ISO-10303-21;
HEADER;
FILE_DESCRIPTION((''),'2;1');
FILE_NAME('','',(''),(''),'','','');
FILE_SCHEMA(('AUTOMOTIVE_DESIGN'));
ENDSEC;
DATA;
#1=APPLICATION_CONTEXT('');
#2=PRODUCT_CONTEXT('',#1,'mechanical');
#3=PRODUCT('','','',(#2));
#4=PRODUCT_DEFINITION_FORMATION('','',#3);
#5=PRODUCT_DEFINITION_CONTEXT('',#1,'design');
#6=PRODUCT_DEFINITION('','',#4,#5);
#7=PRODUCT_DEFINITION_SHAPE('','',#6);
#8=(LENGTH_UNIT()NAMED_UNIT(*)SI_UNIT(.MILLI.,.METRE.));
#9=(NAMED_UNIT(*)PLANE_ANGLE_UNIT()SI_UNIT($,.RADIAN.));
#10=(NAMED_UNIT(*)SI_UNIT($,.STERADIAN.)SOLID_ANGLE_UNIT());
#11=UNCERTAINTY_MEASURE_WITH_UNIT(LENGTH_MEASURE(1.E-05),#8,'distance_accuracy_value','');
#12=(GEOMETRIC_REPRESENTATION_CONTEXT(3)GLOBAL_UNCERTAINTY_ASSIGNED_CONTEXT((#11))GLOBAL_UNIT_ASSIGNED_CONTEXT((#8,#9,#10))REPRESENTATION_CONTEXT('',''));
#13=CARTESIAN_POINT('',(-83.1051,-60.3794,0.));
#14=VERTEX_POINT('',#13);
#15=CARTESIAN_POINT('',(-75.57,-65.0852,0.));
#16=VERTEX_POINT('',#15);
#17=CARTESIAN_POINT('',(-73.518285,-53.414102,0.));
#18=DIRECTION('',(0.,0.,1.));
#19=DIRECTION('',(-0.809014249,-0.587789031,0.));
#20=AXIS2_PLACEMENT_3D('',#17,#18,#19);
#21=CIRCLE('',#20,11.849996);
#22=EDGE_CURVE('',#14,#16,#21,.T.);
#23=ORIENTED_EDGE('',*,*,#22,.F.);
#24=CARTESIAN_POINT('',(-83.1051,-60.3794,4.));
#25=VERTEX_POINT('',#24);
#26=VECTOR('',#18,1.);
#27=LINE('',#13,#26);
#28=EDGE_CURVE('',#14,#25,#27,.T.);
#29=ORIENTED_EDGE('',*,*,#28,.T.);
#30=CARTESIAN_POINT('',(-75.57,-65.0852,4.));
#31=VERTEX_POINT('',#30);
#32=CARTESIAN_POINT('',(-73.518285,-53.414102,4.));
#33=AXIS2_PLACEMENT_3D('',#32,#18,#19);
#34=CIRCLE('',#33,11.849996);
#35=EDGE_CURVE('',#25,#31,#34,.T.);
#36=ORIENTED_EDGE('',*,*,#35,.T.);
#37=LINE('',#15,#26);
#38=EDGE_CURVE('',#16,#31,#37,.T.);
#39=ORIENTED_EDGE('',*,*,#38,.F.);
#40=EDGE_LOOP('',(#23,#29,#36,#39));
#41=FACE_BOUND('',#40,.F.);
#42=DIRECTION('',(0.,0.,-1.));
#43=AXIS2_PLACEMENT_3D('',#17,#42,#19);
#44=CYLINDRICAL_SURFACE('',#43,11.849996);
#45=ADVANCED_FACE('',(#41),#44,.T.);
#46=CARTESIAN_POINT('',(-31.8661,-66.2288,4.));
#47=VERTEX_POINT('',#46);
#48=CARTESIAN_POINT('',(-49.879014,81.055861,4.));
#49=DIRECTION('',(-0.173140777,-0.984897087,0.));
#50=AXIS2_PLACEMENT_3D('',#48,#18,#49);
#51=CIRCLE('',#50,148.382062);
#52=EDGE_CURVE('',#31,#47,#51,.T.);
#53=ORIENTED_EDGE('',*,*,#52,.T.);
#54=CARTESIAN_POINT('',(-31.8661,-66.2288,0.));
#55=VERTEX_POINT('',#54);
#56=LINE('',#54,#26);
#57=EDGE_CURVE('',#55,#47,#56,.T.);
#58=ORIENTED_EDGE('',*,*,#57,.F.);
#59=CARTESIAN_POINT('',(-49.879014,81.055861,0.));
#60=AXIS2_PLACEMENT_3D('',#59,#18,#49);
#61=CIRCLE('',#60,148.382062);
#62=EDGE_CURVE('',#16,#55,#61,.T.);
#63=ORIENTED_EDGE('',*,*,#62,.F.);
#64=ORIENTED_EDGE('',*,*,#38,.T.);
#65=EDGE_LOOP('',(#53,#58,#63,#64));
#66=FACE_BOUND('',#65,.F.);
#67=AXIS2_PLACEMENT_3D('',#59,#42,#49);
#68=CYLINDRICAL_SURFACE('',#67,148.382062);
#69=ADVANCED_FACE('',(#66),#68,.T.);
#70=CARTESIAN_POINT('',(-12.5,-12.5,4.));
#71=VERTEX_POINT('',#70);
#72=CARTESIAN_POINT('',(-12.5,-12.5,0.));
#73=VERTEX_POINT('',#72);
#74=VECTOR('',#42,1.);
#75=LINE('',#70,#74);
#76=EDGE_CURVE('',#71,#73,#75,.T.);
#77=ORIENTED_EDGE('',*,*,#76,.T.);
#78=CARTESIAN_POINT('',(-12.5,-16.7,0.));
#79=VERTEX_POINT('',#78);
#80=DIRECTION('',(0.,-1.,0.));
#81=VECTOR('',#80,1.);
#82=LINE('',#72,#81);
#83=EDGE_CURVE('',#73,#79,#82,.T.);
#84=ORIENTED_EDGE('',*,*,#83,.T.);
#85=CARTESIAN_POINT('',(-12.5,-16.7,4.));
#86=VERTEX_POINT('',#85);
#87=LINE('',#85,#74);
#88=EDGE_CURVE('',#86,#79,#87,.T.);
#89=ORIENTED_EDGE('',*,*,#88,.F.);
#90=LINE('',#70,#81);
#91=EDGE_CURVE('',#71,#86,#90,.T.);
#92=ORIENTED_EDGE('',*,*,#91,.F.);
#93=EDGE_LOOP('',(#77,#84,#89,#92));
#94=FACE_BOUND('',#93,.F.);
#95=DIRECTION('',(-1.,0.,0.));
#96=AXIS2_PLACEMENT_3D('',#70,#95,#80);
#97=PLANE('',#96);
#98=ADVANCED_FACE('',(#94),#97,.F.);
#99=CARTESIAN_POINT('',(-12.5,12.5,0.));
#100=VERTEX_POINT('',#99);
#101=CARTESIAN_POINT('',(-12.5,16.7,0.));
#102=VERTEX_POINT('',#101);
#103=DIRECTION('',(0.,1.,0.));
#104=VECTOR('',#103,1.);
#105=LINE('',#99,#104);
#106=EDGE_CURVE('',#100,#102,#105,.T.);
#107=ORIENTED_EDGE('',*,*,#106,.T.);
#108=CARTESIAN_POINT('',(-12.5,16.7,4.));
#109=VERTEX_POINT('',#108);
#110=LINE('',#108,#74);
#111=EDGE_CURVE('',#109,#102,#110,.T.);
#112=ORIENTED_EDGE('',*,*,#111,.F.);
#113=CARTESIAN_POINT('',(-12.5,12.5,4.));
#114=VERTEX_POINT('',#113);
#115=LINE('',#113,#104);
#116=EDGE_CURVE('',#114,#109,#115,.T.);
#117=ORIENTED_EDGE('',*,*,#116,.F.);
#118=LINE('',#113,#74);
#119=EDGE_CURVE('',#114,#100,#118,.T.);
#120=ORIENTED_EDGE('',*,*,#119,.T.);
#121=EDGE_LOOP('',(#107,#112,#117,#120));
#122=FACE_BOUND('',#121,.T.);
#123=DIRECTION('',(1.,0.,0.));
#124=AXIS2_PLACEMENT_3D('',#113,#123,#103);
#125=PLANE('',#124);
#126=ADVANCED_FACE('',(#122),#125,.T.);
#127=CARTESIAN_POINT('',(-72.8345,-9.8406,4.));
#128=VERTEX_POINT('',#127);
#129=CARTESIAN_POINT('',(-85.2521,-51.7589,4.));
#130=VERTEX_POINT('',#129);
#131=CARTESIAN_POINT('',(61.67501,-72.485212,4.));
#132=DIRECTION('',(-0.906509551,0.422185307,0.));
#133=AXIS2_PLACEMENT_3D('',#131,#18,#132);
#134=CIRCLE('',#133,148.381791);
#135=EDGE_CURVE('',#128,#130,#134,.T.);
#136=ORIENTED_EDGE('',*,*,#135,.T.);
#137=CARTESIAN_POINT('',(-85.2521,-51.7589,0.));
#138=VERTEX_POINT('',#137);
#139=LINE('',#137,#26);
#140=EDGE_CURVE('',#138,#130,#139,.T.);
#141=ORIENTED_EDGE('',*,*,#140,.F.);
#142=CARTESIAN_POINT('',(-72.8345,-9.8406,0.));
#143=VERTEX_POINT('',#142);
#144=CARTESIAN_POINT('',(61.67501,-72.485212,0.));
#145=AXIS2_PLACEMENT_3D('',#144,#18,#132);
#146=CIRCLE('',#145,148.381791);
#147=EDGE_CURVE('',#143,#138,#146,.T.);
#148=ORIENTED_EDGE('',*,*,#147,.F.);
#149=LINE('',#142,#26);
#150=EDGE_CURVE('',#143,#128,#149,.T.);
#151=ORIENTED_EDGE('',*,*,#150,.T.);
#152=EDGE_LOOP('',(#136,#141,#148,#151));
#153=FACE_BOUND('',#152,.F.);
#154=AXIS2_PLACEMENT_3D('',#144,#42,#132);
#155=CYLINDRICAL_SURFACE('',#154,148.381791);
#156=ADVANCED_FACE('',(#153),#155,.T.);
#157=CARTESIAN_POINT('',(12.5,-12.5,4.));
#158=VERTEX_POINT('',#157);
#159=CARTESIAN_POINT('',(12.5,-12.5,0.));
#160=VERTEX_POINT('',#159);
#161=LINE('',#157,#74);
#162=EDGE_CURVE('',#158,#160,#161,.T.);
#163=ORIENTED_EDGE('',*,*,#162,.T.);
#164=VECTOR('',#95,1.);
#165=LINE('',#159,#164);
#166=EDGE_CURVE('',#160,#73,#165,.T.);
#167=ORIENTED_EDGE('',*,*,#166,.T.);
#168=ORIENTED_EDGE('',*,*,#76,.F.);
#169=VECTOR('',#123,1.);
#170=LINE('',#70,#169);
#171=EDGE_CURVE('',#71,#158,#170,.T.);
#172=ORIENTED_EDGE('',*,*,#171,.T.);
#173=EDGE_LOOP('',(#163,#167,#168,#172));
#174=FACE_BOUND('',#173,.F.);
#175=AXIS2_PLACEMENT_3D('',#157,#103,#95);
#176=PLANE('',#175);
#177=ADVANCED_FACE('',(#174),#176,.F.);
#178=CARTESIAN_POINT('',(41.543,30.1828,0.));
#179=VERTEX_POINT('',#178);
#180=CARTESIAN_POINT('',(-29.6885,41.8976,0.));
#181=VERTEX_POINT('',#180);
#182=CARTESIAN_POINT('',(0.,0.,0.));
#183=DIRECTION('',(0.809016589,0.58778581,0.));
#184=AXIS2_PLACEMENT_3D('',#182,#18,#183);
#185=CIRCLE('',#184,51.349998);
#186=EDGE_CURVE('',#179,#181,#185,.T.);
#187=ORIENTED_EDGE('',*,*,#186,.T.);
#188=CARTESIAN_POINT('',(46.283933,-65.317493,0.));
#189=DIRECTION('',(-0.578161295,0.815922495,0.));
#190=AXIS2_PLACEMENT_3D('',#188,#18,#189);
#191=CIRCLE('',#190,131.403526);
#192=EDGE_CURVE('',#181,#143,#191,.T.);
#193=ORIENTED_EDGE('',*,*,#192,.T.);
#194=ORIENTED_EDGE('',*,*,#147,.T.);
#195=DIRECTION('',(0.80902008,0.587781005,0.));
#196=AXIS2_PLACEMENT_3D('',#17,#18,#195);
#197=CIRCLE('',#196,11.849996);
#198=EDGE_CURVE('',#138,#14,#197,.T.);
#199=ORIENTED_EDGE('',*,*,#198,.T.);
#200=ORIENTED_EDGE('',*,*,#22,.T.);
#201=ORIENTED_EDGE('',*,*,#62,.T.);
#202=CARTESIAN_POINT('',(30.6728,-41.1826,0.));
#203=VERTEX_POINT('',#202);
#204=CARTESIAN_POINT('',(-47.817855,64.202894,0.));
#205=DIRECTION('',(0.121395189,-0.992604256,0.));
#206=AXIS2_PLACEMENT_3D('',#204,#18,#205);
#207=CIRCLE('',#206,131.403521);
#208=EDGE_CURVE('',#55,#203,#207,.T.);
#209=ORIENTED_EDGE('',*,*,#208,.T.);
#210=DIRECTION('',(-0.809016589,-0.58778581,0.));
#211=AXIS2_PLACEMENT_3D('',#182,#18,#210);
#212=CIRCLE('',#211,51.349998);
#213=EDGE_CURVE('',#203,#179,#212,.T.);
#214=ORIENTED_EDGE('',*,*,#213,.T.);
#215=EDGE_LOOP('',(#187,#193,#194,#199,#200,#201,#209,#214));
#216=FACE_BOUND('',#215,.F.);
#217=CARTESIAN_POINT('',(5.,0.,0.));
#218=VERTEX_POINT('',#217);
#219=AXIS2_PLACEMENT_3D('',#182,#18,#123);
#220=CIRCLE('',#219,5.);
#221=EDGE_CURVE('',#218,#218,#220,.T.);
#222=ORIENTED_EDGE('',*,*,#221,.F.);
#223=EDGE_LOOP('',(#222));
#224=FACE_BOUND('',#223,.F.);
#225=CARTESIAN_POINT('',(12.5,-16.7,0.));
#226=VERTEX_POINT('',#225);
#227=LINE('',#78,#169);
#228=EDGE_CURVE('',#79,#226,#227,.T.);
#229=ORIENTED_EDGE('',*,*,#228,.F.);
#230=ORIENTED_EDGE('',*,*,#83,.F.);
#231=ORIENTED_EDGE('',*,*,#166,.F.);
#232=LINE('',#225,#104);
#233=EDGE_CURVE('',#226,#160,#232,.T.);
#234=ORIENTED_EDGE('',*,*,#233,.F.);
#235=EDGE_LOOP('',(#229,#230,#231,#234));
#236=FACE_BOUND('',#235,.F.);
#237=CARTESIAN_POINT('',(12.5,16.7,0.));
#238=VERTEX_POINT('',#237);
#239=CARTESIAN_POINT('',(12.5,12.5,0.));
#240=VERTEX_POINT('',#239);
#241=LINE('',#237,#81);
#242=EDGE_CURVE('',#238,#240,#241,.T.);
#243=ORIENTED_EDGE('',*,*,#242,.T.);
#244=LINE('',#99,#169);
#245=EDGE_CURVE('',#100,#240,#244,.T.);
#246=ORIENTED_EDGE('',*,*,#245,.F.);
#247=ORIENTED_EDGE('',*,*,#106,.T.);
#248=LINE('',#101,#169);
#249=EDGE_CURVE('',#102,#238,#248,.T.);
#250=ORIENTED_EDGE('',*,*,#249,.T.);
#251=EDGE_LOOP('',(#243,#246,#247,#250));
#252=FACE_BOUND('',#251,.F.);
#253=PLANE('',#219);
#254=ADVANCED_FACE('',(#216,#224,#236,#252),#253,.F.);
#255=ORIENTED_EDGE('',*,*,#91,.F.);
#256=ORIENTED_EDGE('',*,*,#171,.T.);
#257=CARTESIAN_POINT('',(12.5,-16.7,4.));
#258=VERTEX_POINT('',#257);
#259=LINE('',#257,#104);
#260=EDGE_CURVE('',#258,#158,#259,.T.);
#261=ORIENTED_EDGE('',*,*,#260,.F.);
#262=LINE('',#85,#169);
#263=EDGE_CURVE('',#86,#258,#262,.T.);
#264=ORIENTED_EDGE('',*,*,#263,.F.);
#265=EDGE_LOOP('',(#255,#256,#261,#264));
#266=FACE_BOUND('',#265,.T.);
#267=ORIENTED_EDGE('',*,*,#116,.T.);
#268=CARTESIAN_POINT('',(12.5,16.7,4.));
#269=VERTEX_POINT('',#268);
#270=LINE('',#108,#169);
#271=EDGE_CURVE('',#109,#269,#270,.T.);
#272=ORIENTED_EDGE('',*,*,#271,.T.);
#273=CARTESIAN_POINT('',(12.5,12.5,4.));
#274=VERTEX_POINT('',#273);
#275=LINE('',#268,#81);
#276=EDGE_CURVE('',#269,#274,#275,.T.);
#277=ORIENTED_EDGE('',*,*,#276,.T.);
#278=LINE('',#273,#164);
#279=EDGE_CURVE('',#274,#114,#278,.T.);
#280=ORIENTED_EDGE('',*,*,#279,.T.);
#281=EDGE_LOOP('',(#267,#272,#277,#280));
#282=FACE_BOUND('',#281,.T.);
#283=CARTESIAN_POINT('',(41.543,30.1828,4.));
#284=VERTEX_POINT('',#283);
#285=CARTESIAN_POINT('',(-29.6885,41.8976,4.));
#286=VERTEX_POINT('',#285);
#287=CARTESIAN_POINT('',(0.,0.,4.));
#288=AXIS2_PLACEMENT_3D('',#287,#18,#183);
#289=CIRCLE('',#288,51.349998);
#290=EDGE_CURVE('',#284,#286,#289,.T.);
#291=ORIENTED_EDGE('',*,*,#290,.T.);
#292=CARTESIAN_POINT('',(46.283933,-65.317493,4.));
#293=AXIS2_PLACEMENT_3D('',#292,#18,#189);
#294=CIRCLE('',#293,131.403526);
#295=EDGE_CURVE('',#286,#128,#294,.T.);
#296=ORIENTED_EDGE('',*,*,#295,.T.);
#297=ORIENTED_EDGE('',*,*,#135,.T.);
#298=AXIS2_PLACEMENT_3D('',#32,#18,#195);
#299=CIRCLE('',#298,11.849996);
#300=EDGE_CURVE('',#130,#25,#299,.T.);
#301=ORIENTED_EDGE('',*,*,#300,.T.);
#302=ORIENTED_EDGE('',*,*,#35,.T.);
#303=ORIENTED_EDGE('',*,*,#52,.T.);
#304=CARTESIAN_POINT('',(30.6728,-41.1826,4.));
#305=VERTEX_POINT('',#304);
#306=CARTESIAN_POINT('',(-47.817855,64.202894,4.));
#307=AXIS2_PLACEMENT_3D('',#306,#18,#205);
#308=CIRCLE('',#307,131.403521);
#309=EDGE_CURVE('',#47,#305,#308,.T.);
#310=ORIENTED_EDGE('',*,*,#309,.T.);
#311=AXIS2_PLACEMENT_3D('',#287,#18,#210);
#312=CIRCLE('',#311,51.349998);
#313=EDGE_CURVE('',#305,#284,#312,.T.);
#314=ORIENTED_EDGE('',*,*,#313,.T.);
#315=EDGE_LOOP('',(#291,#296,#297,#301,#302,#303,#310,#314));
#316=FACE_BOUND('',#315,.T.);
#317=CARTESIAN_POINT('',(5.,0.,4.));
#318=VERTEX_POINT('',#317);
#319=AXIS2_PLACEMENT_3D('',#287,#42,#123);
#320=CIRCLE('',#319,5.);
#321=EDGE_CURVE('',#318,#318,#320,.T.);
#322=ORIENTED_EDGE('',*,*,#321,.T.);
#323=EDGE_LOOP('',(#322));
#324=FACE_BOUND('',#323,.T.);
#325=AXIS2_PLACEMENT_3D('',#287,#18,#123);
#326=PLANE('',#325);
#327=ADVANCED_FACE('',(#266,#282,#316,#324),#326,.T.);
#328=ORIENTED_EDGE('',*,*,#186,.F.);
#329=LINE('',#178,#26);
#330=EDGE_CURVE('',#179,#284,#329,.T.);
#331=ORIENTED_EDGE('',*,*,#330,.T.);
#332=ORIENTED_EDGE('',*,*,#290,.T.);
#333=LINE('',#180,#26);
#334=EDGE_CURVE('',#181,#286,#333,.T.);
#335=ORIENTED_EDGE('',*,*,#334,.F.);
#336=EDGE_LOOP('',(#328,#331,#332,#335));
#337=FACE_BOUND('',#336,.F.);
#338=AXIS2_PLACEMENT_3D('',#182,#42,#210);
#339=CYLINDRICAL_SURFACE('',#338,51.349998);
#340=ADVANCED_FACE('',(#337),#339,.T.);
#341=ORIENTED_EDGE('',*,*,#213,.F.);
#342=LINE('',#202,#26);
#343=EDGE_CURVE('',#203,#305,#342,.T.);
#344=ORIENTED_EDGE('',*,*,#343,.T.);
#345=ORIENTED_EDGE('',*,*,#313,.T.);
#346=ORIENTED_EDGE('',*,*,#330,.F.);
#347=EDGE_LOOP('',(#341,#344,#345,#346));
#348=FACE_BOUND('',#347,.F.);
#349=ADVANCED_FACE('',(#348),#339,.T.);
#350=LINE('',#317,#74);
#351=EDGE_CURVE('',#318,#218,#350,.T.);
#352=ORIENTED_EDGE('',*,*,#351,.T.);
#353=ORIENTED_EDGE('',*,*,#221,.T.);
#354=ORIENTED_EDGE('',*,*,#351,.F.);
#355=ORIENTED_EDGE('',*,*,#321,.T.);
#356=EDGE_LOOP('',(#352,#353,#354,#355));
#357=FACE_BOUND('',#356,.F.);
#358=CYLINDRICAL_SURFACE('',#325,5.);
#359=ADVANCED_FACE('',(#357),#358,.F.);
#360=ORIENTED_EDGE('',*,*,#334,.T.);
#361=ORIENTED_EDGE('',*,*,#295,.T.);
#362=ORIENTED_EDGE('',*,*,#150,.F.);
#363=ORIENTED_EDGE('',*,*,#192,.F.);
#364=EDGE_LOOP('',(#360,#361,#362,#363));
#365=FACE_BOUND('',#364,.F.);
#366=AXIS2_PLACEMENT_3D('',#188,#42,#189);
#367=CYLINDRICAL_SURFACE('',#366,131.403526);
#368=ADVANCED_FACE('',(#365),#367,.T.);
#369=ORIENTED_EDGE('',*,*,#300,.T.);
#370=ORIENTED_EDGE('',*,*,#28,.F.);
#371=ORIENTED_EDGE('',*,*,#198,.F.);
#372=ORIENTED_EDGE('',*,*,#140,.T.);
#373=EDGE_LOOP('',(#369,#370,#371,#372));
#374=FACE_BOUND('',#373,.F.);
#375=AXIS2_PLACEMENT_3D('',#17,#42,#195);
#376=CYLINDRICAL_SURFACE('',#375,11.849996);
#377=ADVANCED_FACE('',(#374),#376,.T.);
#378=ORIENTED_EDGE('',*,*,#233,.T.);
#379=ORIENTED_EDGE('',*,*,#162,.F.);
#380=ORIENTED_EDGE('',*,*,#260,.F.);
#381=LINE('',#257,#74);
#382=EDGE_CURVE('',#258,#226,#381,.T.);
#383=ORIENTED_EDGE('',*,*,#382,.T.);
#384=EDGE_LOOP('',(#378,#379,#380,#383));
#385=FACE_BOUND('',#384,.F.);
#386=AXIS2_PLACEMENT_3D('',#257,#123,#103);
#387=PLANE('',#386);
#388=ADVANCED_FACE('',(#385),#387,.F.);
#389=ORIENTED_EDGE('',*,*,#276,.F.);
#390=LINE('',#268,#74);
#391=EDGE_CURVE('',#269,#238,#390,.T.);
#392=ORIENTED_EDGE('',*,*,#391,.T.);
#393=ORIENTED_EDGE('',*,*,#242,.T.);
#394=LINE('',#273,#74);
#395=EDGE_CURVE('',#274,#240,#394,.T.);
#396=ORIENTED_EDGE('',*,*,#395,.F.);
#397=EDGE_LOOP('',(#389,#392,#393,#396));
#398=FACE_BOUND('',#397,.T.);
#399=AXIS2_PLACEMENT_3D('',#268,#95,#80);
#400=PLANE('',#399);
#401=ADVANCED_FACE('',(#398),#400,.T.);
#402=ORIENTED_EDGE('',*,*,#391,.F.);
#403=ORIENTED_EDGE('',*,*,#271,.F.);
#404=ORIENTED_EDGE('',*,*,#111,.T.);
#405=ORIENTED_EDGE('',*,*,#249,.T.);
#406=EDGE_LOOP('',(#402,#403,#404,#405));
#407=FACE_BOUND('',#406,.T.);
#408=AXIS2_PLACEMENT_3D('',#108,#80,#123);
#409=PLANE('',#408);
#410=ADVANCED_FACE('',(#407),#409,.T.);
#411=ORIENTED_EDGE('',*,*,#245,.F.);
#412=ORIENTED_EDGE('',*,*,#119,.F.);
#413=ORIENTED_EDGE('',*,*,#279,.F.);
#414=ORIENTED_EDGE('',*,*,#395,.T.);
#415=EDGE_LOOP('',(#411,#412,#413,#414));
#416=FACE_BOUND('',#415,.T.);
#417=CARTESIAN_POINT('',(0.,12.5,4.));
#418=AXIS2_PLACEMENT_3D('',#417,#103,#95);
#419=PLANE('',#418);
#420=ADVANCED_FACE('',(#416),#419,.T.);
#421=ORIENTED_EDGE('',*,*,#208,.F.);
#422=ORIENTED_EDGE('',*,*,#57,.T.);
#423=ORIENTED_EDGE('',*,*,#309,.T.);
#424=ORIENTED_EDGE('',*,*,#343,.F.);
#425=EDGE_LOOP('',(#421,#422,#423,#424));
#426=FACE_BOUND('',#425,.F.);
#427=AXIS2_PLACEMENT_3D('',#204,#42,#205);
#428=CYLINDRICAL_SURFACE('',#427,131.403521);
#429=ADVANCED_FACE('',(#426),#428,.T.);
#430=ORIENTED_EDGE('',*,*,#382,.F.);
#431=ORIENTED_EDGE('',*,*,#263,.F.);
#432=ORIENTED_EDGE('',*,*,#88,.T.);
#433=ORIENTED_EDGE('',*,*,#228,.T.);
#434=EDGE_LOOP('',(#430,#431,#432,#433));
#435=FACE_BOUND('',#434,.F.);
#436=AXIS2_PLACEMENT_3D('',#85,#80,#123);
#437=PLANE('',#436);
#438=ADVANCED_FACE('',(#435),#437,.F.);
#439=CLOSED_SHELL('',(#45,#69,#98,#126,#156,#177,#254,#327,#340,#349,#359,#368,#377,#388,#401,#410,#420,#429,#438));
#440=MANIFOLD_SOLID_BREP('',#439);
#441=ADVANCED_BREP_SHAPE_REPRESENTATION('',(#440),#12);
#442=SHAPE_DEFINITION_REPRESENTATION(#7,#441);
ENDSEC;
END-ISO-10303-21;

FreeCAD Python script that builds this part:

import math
import FreeCAD as App
import Part
import Sketcher
from FreeCAD import Vector
Q = App.Units.Quantity

doc = App.newDocument("Part")
body = doc.addObject("PartDesign::Body", "Body")

# Sketch on XY plane
sketch1 = body.newObject("Sketcher::SketchObject", "Sketch")
sketch1.AttachmentSupport = (doc.getObject("XY_Plane"), [""])
sketch1.MapMode = "FlatFace"
sketch1.addGeometry([
    Part.ArcOfCircle(Part.Circle(Vector(0, 0, 0), Vector(0, 0, 1), 51.349998), math.radians(-53.32126), math.radians(125.321259)),  # 0
    Part.ArcOfCircle(Part.Circle(Vector(46.283933, -65.317493, 0), Vector(0, 0, 1), 131.403526), math.radians(125.321322), math.radians(155.027245)),  # 1
    Part.ArcOfCircle(Part.Circle(Vector(61.67501, -72.485212, 0), Vector(0, 0, 1), 148.381791), math.radians(155.027368), math.radians(171.970536)),  # 2
    Part.ArcOfCircle(Part.Circle(Vector(-73.5183, -53.4142, 0), Vector(0, 0, 1), 11.849926), math.radians(171.970209), math.radians(215.99993)),  # 3
    Part.ArcOfCircle(Part.Circle(Vector(-73.5183, -53.4142, 0), Vector(0, 0, 1), 11.849926), math.radians(-144.00007), math.radians(-99.97042)),  # 4
    Part.ArcOfCircle(Part.Circle(Vector(-49.879014, 81.055861, 0), Vector(0, 0, 1), 148.382062), math.radians(-99.970481), math.radians(-83.027352)),  # 5
    Part.ArcOfCircle(Part.Circle(Vector(-47.817855, 64.202894, 0), Vector(0, 0, 1), 131.403521), math.radians(-83.02737), math.radians(-53.32142)),  # 6
], False)
sketch1.addConstraint([
    Sketcher.Constraint("Tangent", 0, 2, 1, 1),
    Sketcher.Constraint("Tangent", 1, 2, 2, 1),
    Sketcher.Constraint("Tangent", 2, 2, 3, 1),
    Sketcher.Constraint("Tangent", 3, 2, 4, 1),
    Sketcher.Constraint("Tangent", 4, 2, 5, 1),
    Sketcher.Constraint("Tangent", 5, 2, 6, 1),
    Sketcher.Constraint("Tangent", 6, 2, 0, 1),
    Sketcher.Constraint("Coincident", 0, 3, -1, 1),
    Sketcher.Constraint("Equal", 3, 4),
    Sketcher.Constraint("Equal", 1, 6),
    Sketcher.Constraint("Radius", 0, Q("51.35 mm")),
    Sketcher.Constraint("Radius", 3, Q("11.85 mm")),
    Sketcher.Constraint("Radius", 5, Q("148.382 mm")),
    Sketcher.Constraint("Radius", 1, Q("131.4035 mm")),
    Sketcher.Constraint("Radius", 2, Q("148.3818 mm")),
    Sketcher.Constraint("DistanceX", 4, 2, -1, 1, Q("75.57 mm")),
    Sketcher.Constraint("DistanceY", 3, 3, 5, 3, Q("134.47 mm")),
    Sketcher.Constraint("DistanceY", 5, 2, 2, 2, Q("14.47 mm")),
    Sketcher.Constraint("DistanceX", -1, 1, 1, 3, Q("46.284 mm")),
    Sketcher.Constraint("DistanceX", 3, 2, -1, 1, Q("83.105 mm")),
])
pad1 = body.newObject("PartDesign::Pad", "Pad")
pad1.Profile = sketch1
pad1.Length = 4

# Sketch on XY plane
sketch2 = body.newObject("Sketcher::SketchObject", "Sketch001")
sketch2.AttachmentSupport = (doc.getObject("XY_Plane"), [""])
sketch2.MapMode = "FlatFace"
sketch2.AttachmentOffset = App.Placement(Vector(0, 0, 4), App.Rotation())
sketch2.addGeometry([
    Part.Circle(Vector(0, 0, 0), Vector(0, 0, 1), 5),  # 0
    Part.LineSegment(Vector(-12.5, 12.5, 0), Vector(12.5, 12.5, 0)),  # 1
    Part.LineSegment(Vector(12.5, 12.5, 0), Vector(12.5, 16.7, 0)),  # 2
    Part.LineSegment(Vector(12.5, 16.7, 0), Vector(-12.5, 16.7, 0)),  # 3
    Part.LineSegment(Vector(-12.5, 16.7, 0), Vector(-12.5, 12.5, 0)),  # 4
    Part.LineSegment(Vector(12.5, -12.5, 0), Vector(-12.5, -12.5, 0)),  # 5
    Part.LineSegment(Vector(-12.5, -12.5, 0), Vector(-12.5, -16.7, 0)),  # 6
    Part.LineSegment(Vector(-12.5, -16.7, 0), Vector(12.5, -16.7, 0)),  # 7
    Part.LineSegment(Vector(12.5, -16.7, 0), Vector(12.5, -12.5, 0)),  # 8
], False)
sketch2.addConstraint([
    Sketcher.Constraint("Coincident", 1, 2, 2, 1),
    Sketcher.Constraint("Coincident", 2, 2, 3, 1),
    Sketcher.Constraint("Coincident", 3, 2, 4, 1),
    Sketcher.Constraint("Coincident", 4, 2, 1, 1),
    Sketcher.Constraint("Coincident", 5, 2, 6, 1),
    Sketcher.Constraint("Coincident", 6, 2, 7, 1),
    Sketcher.Constraint("Coincident", 7, 2, 8, 1),
    Sketcher.Constraint("Coincident", 8, 2, 5, 1),
    Sketcher.Constraint("Horizontal", 1),
    Sketcher.Constraint("Vertical", 2),
    Sketcher.Constraint("Horizontal", 3),
    Sketcher.Constraint("Vertical", 4),
    Sketcher.Constraint("Horizontal", 5),
    Sketcher.Constraint("Vertical", 6),
    Sketcher.Constraint("Horizontal", 7),
    Sketcher.Constraint("Vertical", 8),
    Sketcher.Constraint("Coincident", 0, 3, -1, 1),
    Sketcher.Constraint("Symmetric", 1, 2, 5, 2, -1, 1),
    Sketcher.Constraint("Symmetric", 3, 2, 7, 2, -1, 1),
    Sketcher.Constraint("Vertical", 4, 2, 5, 2),
    Sketcher.Constraint("Diameter", 0, Q("10 mm")),
    Sketcher.Constraint("DistanceX", 1, 1, 1, 2, Q("25 mm")),
    Sketcher.Constraint("DistanceY", 2, 1, 2, 2, Q("4.2 mm")),
    Sketcher.Constraint("DistanceY", 5, 2, 4, 2, Q("25 mm")),
])
pocket1 = body.newObject("PartDesign::Pocket", "Pocket")
pocket1.Profile = sketch2
pocket1.Length = 4

doc.recompute()
